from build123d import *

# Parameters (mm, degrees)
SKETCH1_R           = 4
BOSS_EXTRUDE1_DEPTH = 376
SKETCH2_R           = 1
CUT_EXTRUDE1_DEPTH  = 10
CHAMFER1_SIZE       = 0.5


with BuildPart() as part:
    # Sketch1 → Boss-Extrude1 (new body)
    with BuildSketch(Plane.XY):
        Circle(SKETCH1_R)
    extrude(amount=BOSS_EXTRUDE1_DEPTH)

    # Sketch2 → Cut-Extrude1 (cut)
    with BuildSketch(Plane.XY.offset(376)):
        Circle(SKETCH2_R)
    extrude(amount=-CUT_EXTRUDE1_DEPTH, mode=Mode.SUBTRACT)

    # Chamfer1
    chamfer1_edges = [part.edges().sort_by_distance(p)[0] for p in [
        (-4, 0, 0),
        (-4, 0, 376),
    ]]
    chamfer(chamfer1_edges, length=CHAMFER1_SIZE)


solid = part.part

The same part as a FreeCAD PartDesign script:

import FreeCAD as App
import Part
import Sketcher


def edges_at(feature, points):
    """Names of the edges that pass closest to the given points."""
    edges = feature.Shape.Edges
    near = lambda p: min(range(len(edges)), key=lambda i: edges[i].distToShape(Part.Vertex(*p))[0])
    return sorted({f"Edge{near(p) + 1}" for p in points})

doc = App.newDocument("Part")
params = doc.addObject("Spreadsheet::Sheet", "Params")
for row, (alias, value) in enumerate([
    ("sketch1_diameter", "8 mm"),
    ("pad1_length", "376 mm"),
    ("sketch2_diameter", "2 mm"),
    ("pocket1_length", "10 mm"),
    ("chamfer_size", "0.5 mm"),
], start=1):
    params.set(f"A{row}", alias)
    params.set(f"B{row}", "=" + value)
    params.setAlias(f"B{row}", alias)

body = doc.addObject("PartDesign::Body", "Body")

# Sketch on XY plane
sketch1 = doc.addObject("Sketcher::SketchObject", "Sketch")
body.addObject(sketch1)
sketch1.AttachmentSupport = (doc.XY_Plane, [""])
sketch1.MapMode = "FlatFace"
sketch1.addGeometry(Part.Circle(App.Vector(0, 0, 0), App.Vector(0, 0, 1), 4), False)
sketch1.addConstraint([
    Sketcher.Constraint("Coincident", 0, 3, -1, 1),
    Sketcher.Constraint("Diameter", 0, 8.0),
])
sketch1.setExpression("Constraints[1]", "Params.sketch1_diameter")
pad1 = doc.addObject("PartDesign::Pad", "Pad")
body.addObject(pad1)
pad1.Profile = sketch1
pad1.setExpression("Length", "Params.pad1_length")

# Sketch on XY plane
sketch2 = doc.addObject("Sketcher::SketchObject", "Sketch001")
body.addObject(sketch2)
sketch2.AttachmentSupport = (doc.XY_Plane, [""])
sketch2.MapMode = "FlatFace"
sketch2.AttachmentOffset = App.Placement(App.Vector(0, 0, 376), App.Rotation())
sketch2.addGeometry(Part.Circle(App.Vector(0, 0, 0), App.Vector(0, 0, 1), 1), False)
sketch2.addConstraint([
    Sketcher.Constraint("Coincident", 0, 3, -1, 1),
    Sketcher.Constraint("Diameter", 0, 2.0),
])
sketch2.setExpression("Constraints[1]", "Params.sketch2_diameter")
pocket1 = doc.addObject("PartDesign::Pocket", "Pocket")
body.addObject(pocket1)
pocket1.Profile = sketch2
pocket1.setExpression("Length", "Params.pocket1_length")
doc.recompute()

chamfer = doc.addObject("PartDesign::Chamfer", "Chamfer")
body.addObject(chamfer)
chamfer.Base = (pocket1, edges_at(pocket1, [(-4, 0, 0), (-4, 0, 376)]))
chamfer.setExpression("Size", "Params.chamfer_size")

doc.recompute()
